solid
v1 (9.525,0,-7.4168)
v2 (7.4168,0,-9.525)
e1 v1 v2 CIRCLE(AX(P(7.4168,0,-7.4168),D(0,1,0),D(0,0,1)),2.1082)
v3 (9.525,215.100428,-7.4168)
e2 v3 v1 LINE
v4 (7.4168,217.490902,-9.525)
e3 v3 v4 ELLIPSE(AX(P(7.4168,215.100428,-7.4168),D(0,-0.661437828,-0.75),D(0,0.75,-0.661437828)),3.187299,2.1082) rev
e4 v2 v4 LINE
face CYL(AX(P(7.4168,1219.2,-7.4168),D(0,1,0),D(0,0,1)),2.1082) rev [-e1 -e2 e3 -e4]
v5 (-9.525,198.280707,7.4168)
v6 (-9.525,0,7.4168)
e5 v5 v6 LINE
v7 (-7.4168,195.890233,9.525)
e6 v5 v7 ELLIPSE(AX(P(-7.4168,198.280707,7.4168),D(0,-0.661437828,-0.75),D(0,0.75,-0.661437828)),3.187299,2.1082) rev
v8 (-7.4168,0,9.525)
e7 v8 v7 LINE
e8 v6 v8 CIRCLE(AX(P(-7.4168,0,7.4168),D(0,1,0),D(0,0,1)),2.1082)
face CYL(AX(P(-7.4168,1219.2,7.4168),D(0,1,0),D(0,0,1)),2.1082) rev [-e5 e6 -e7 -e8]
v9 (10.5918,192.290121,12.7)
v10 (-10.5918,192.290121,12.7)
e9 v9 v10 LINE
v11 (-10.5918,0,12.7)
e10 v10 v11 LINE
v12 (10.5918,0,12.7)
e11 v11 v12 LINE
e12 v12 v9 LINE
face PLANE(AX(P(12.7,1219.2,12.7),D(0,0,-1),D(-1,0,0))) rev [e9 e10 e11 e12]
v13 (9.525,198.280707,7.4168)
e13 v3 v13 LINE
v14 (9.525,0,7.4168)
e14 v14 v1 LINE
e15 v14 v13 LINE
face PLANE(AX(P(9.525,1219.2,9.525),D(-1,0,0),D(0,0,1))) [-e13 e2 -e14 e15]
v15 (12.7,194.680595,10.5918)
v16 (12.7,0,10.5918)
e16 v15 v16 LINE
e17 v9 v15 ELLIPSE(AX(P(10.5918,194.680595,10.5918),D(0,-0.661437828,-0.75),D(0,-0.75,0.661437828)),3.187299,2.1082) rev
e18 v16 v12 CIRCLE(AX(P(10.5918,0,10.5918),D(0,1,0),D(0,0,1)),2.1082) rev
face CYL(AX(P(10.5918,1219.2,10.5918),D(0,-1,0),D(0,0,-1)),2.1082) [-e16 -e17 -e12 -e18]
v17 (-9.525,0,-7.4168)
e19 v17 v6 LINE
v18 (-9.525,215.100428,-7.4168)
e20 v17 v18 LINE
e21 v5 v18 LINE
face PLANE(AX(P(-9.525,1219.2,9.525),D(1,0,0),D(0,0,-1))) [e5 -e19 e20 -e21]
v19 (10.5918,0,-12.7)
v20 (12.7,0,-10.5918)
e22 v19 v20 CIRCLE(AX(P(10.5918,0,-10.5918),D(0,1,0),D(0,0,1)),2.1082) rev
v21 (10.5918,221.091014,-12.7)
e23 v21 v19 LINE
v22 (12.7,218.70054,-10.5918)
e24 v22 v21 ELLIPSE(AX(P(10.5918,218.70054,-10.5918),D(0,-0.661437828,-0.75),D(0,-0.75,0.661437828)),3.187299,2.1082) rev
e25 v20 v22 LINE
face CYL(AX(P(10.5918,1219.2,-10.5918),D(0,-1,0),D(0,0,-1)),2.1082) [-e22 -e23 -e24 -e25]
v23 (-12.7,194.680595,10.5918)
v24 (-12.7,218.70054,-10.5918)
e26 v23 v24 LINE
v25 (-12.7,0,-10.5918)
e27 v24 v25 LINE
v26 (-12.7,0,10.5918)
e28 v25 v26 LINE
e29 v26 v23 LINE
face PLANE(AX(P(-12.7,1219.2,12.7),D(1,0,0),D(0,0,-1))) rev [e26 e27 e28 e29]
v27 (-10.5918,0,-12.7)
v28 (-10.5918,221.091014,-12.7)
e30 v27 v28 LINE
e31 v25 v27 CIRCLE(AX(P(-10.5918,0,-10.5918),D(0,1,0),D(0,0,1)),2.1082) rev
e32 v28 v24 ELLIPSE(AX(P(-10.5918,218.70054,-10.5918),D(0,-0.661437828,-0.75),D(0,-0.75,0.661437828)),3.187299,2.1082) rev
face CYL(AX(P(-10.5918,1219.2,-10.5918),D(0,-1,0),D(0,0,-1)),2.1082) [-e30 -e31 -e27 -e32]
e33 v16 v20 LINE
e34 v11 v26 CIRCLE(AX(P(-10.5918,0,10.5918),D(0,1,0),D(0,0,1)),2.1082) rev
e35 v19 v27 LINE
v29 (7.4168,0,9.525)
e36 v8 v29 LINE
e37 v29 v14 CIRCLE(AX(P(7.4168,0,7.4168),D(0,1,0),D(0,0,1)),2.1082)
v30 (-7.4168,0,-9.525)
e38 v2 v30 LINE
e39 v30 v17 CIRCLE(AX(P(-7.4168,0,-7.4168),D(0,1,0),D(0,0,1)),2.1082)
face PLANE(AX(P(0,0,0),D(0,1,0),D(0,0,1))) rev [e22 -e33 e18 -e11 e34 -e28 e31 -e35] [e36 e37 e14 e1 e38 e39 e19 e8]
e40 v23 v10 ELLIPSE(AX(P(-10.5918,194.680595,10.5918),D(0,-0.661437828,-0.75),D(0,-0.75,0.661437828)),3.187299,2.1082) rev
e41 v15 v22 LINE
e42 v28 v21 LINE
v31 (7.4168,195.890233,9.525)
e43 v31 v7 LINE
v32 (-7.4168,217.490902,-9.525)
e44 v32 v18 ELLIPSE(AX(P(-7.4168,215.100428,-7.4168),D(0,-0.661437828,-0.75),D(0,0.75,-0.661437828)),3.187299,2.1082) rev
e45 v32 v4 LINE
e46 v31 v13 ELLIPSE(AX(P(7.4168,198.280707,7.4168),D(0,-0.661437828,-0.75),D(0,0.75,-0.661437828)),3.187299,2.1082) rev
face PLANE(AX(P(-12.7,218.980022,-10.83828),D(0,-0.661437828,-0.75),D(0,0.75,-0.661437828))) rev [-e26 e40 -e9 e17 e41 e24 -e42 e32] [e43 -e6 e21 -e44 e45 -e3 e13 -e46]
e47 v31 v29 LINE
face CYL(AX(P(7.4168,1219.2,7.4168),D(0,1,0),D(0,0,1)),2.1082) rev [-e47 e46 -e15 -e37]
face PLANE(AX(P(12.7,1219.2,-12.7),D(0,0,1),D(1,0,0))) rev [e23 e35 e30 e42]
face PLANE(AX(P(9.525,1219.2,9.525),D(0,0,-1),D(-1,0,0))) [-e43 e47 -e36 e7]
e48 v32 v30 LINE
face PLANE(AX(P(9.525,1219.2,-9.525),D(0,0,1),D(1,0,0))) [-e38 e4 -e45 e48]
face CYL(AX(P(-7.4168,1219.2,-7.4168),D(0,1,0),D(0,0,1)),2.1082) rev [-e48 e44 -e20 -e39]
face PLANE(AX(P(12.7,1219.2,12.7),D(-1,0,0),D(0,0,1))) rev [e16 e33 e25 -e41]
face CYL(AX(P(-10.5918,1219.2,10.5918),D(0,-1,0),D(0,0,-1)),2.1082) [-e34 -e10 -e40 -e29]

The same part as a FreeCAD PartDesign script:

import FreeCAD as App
import Part
import Sketcher
Q = App.Units.Quantity


def edges_at(feature, points):
    """Names of the edges that pass closest to the given points."""
    edges = feature.Shape.Edges
    near = lambda p: min(range(len(edges)), key=lambda i: edges[i].distToShape(Part.Vertex(*p))[0])
    return sorted({f"Edge{near(p) + 1}" for p in points})


def add_polygon(sketch, points):
    """Adds a closed chain of lines whose ends are joined by coincident constraints."""
    first, n = sketch.GeometryCount, len(points)
    for a, b in zip(points, points[1:] + points[:1]):
        sketch.addGeometry(Part.LineSegment(App.Vector(*a, 0), App.Vector(*b, 0)), False)
    for i in range(n):
        sketch.addConstraint(Sketcher.Constraint("Coincident", first + i, 2, first + (i + 1) % n, 1))

doc = App.newDocument("Part")
body = doc.addObject("PartDesign::Body", "Body")

sketch1 = body.newObject("Sketcher::SketchObject", "Sketch")
sketch1.AttachmentSupport = (doc.getObject("XZ_Plane"), [""])
sketch1.MapMode = "FlatFace"
add_polygon(sketch1, [(-13, -13), (-13, 13), (13, 13), (13, -13)])
add_polygon(sketch1, [(10, 10), (-10, 10), (-10, -10), (10, -10)])
sketch1.addConstraint([
    Sketcher.Constraint("Vertical", 0),
    Sketcher.Constraint("Horizontal", 1),
    Sketcher.Constraint("Vertical", 2),
    Sketcher.Constraint("Horizontal", 3),
    Sketcher.Constraint("Horizontal", 4),
    Sketcher.Constraint("Vertical", 5),
    Sketcher.Constraint("Horizontal", 6),
    Sketcher.Constraint("Vertical", 7),
    Sketcher.Constraint("Symmetric", 0, 2, 2, 2, -1, 1),
    Sketcher.Constraint("Symmetric", 4, 2, 6, 2, -1, 1),
    Sketcher.Constraint("Equal", 3, 0),
    Sketcher.Constraint("Equal", 6, 5),
    Sketcher.Constraint("DistanceX", 1, 1, 1, 2, Q("1 in")),
    Sketcher.Constraint("DistanceX", 4, 2, 4, 1, Q("0.75 in")),
])
pad1 = body.newObject("PartDesign::Pad", "Pad")
pad1.Profile = sketch1
pad1.Length = Q("48 in")
pad1.Reversed = True
doc.recompute()

fillet = body.newObject("PartDesign::Fillet", "Fillet")
fillet.Base = (pad1, edges_at(pad1, [
    (9.525, 609.6, 9.525),
    (9.525, 609.6, -9.525),
    (-9.525, 609.6, -9.525),
    (-9.525, 609.6, 9.525),
    (-12.7, 609.6, -12.7),
    (12.7, 609.6, -12.7),
    (12.7, 609.6, 12.7),
    (-12.7, 609.6, 12.7),
]))
fillet.Radius = Q("0.083 in")

sketch2 = body.newObject("Sketcher::SketchObject", "Sketch001")
sketch2.AttachmentSupport = (doc.getObject("YZ_Plane"), [""])
sketch2.MapMode = "FlatFace"
sketch2.AttachmentOffset = App.Placement(App.Vector(0, 0, 0.5 * 25.4), App.Rotation())
add_polygon(sketch2, [(1342, 136), (-123, 136), (-123, -136), (1342, -136)])
add_polygon(sketch2, [(0, -123), (0, 38), (229, 38), (229, -123)])
sketch2.addConstraint([
    Sketcher.Constraint("Horizontal", 0),
    Sketcher.Constraint("Vertical", 1),
    Sketcher.Constraint("Horizontal", 2),
    Sketcher.Constraint("Vertical", 3),
    Sketcher.Constraint("Vertical", 4),
    Sketcher.Constraint("Horizontal", 5),
    Sketcher.Constraint("Vertical", 6),
    Sketcher.Constraint("Horizontal", 7),
    Sketcher.Constraint("PointOnObject", 4, 2, -2),
    Sketcher.Constraint("DistanceX", 5, 1, 5, 2, Q("9 in")),
    Sketcher.Constraint("DistanceX", 0, 2, 0, 1, Q("1465.146 mm")),
    Sketcher.Constraint("DistanceY", 1, 2, 1, 1, Q("271.346 mm")),
    Sketcher.Constraint("DistanceY", 4, 1, 4, 2, Q("161.40449 mm")),
    Sketcher.Constraint("DistanceX", 0, 2, -1, 1, Q("122.973 mm")),
    Sketcher.Constraint("DistanceY", -1, 1, 0, 2, Q("135.673 mm")),
    Sketcher.Constraint("DistanceY", -1, 1, 4, 2, Q("38.374981 mm")),
])
pocket1 = body.newObject("PartDesign::Pocket", "Pocket")
pocket1.Profile = sketch2
pocket1.Type = "ThroughAll"

sketch3 = body.newObject("Sketcher::SketchObject", "Sketch002")
sketch3.AttachmentSupport = (doc.getObject("YZ_Plane"), [""])
sketch3.MapMode = "FlatFace"
sketch3.AttachmentOffset = App.Placement(App.Vector(0, 0, 0.5 * 25.4), App.Rotation())
add_polygon(sketch3, [(212, 15), (0, 202), (-10, 191), (219, -11), (237, -26), (246, -15), (229, 0), (229, 15)])
sketch3.addConstraint([
    Sketcher.Constraint("Vertical", 6),
    Sketcher.Constraint("Horizontal", 7),
    Sketcher.Constraint("PointOnObject", 0, 2, -2),
    Sketcher.Constraint("Perpendicular", 0, 1),
    Sketcher.Constraint("Perpendicular", 1, 2),
    Sketcher.Constraint("Parallel", 2, 3),
    Sketcher.Constraint("Perpendicular", 3, 4),
    Sketcher.Constraint("Perpendicular", 4, 5),
    Sketcher.Constraint("Equal", 1, 4),
    Sketcher.Constraint("Equal", 3, 5),
    Sketcher.Constraint("Distance", 2, Q("12 in")),
    Sketcher.Constraint("DistanceX", -1, 1, 5, 2, Q("9 in")),
    Sketcher.Constraint("DistanceY", -1, 1, 0, 2, Q("7.94 in")),
    Sketcher.Constraint("Distance", 1, Q("0.5726 in")),
    Sketcher.Constraint("DistanceX", -1, 1, 3, 2, Q("236.580998 mm")),
    Sketcher.Constraint("Distance", 0, Q("282.419659 mm")),
])
pocket2 = body.newObject("PartDesign::Pocket", "Pocket001")
pocket2.Profile = sketch3
pocket2.Type = "ThroughAll"

doc.recompute()
